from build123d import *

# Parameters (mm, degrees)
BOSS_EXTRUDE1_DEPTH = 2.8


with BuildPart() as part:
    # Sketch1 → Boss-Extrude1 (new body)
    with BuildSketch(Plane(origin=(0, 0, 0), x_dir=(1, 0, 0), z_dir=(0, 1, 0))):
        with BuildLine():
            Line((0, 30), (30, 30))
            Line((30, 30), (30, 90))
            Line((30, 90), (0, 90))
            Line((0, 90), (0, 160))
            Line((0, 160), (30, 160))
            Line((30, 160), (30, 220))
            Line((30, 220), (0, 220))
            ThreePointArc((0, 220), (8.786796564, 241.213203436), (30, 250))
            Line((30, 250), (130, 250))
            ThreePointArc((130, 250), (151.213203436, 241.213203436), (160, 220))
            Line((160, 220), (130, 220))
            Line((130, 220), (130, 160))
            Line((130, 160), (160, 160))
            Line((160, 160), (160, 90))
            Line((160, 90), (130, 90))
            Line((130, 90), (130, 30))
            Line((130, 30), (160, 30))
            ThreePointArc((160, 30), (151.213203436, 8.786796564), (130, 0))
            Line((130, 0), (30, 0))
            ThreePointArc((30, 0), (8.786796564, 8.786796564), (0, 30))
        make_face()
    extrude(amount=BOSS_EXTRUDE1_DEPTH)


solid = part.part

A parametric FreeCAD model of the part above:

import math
import FreeCAD as App
import Part
import Sketcher

doc = App.newDocument("Part")
body = doc.addObject("PartDesign::Body", "Body")

# Sketch on XZ plane
sketch1 = body.newObject("Sketcher::SketchObject", "Sketch")
sketch1.AttachmentSupport = (doc.getObject("XZ_Plane"), [""])
sketch1.MapMode = "FlatFace"
sketch1.addGeometry(Part.LineSegment(App.Vector(30, -30, 0), App.Vector(0, -30, 0)), False)
sketch1.addGeometry(Part.ArcOfCircle(Part.Circle(App.Vector(30, -30, 0), App.Vector(0, 0, 1), 30), math.radians(90), math.radians(180)), False)
sketch1.addGeometry(Part.LineSegment(App.Vector(30, 0, 0), App.Vector(130, 0, 0)), False)
sketch1.addGeometry(Part.ArcOfCircle(Part.Circle(App.Vector(130, -30, 0), App.Vector(0, 0, 1), 30), math.radians(0), math.radians(90)), False)
sketch1.addGeometry(Part.LineSegment(App.Vector(160, -30, 0), App.Vector(130, -30, 0)), False)
sketch1.addGeometry(Part.LineSegment(App.Vector(130, -30, 0), App.Vector(130, -90, 0)), False)
sketch1.addGeometry(Part.LineSegment(App.Vector(130, -90, 0), App.Vector(160, -90, 0)), False)
sketch1.addGeometry(Part.LineSegment(App.Vector(160, -90, 0), App.Vector(160, -160, 0)), False)
sketch1.addGeometry(Part.LineSegment(App.Vector(160, -160, 0), App.Vector(130, -160, 0)), False)
sketch1.addGeometry(Part.LineSegment(App.Vector(130, -160, 0), App.Vector(130, -220, 0)), False)
sketch1.addGeometry(Part.LineSegment(App.Vector(130, -220, 0), App.Vector(160, -220, 0)), False)
sketch1.addGeometry(Part.ArcOfCircle(Part.Circle(App.Vector(130, -220, 0), App.Vector(0, 0, 1), 30), math.radians(-90), math.radians(0)), False)
sketch1.addGeometry(Part.LineSegment(App.Vector(130, -250, 0), App.Vector(30, -250, 0)), False)
sketch1.addGeometry(Part.ArcOfCircle(Part.Circle(App.Vector(30, -220, 0), App.Vector(0, 0, 1), 30), math.radians(180), math.radians(270)), False)
sketch1.addGeometry(Part.LineSegment(App.Vector(0, -220, 0), App.Vector(30, -220, 0)), False)
sketch1.addGeometry(Part.LineSegment(App.Vector(30, -220, 0), App.Vector(30, -160, 0)), False)
sketch1.addGeometry(Part.LineSegment(App.Vector(30, -160, 0), App.Vector(0, -160, 0)), False)
sketch1.addGeometry(Part.LineSegment(App.Vector(0, -160, 0), App.Vector(0, -90, 0)), False)
sketch1.addGeometry(Part.LineSegment(App.Vector(0, -90, 0), App.Vector(30, -90, 0)), False)
sketch1.addGeometry(Part.LineSegment(App.Vector(30, -90, 0), App.Vector(30, -30, 0)), False)
sketch1.addConstraint(Sketcher.Constraint("Coincident", 0, 2, 1, 2))
sketch1.addConstraint(Sketcher.Constraint("Tangent", 1, 1, 2, 1))
sketch1.addConstraint(Sketcher.Constraint("Tangent", 2, 2, 3, 2))
sketch1.addConstraint(Sketcher.Constraint("Coincident", 3, 1, 4, 1))
sketch1.addConstraint(Sketcher.Constraint("Coincident", 4, 2, 5, 1))
sketch1.addConstraint(Sketcher.Constraint("Coincident", 5, 2, 6, 1))
sketch1.addConstraint(Sketcher.Constraint("Coincident", 6, 2, 7, 1))
sketch1.addConstraint(Sketcher.Constraint("Coincident", 7, 2, 8, 1))
sketch1.addConstraint(Sketcher.Constraint("Coincident", 8, 2, 9, 1))
sketch1.addConstraint(Sketcher.Constraint("Coincident", 9, 2, 10, 1))
sketch1.addConstraint(Sketcher.Constraint("Coincident", 10, 2, 11, 2))
sketch1.addConstraint(Sketcher.Constraint("Tangent", 11, 1, 12, 1))
sketch1.addConstraint(Sketcher.Constraint("Tangent", 12, 2, 13, 2))
sketch1.addConstraint(Sketcher.Constraint("Coincident", 13, 1, 14, 1))
sketch1.addConstraint(Sketcher.Constraint("Coincident", 14, 2, 15, 1))
sketch1.addConstraint(Sketcher.Constraint("Coincident", 15, 2, 16, 1))
sketch1.addConstraint(Sketcher.Constraint("Coincident", 16, 2, 17, 1))
sketch1.addConstraint(Sketcher.Constraint("Coincident", 17, 2, 18, 1))
sketch1.addConstraint(Sketcher.Constraint("Coincident", 18, 2, 19, 1))
sketch1.addConstraint(Sketcher.Constraint("Coincident", 19, 2, 0, 1))
sketch1.addConstraint(Sketcher.Constraint("Horizontal", 0))
sketch1.addConstraint(Sketcher.Constraint("Horizontal", 2))
sketch1.addConstraint(Sketcher.Constraint("Horizontal", 4))
sketch1.addConstraint(Sketcher.Constraint("Vertical", 5))
sketch1.addConstraint(Sketcher.Constraint("Horizontal", 6))
sketch1.addConstraint(Sketcher.Constraint("Vertical", 7))
sketch1.addConstraint(Sketcher.Constraint("Horizontal", 8))
sketch1.addConstraint(Sketcher.Constraint("Vertical", 9))
sketch1.addConstraint(Sketcher.Constraint("Horizontal", 10))
sketch1.addConstraint(Sketcher.Constraint("Horizontal", 12))
sketch1.addConstraint(Sketcher.Constraint("Horizontal", 14))
sketch1.addConstraint(Sketcher.Constraint("Vertical", 15))
sketch1.addConstraint(Sketcher.Constraint("Horizontal", 16))
sketch1.addConstraint(Sketcher.Constraint("Vertical", 17))
sketch1.addConstraint(Sketcher.Constraint("Horizontal", 18))
sketch1.addConstraint(Sketcher.Constraint("Vertical", 19))
sketch1.addConstraint(Sketcher.Constraint("Coincident", 4, 2, 3, 3))
sketch1.addConstraint(Sketcher.Constraint("Coincident", 9, 2, 11, 3))
sketch1.addConstraint(Sketcher.Constraint("Coincident", 14, 2, 13, 3))
sketch1.addConstraint(Sketcher.Constraint("Coincident", 19, 2, 1, 3))
sketch1.addConstraint(Sketcher.Constraint("Equal", 1, 3))
sketch1.addConstraint(Sketcher.Constraint("Equal", 3, 11))
sketch1.addConstraint(Sketcher.Constraint("Equal", 11, 13))
sketch1.addConstraint(Sketcher.Constraint("PointOnObject", 0, 2, -2))
sketch1.addConstraint(Sketcher.Constraint("PointOnObject", 1, 1, -1))
sketch1.addConstraint(Sketcher.Constraint("PointOnObject", 13, 1, -2))
sketch1.addConstraint(Sketcher.Constraint("PointOnObject", 16, 2, -2))
sketch1.addConstraint(Sketcher.Constraint("Horizontal", 8, 2, 15, 2))
sketch1.addConstraint(Sketcher.Constraint("Horizontal", 6, 2, 17, 2))
sketch1.addConstraint(Sketcher.Constraint("Vertical", 3, 3, 11, 3))
sketch1.addConstraint(Sketcher.Constraint("Vertical", 3, 1, 6, 2))
sketch1.addConstraint(Sketcher.Constraint("Equal", 5, 9))
sketch1.addConstraint(Sketcher.Constraint("Radius", 1, 30.0))
sketch1.addConstraint(Sketcher.Constraint("DistanceX", 2, 1, 2, 2, 100.0))
sketch1.addConstraint(Sketcher.Constraint("DistanceY", 5, 2, 5, 1, 60.0))
sketch1.addConstraint(Sketcher.Constraint("DistanceY", 7, 2, 7, 1, 70.0))
pad1 = body.newObject("PartDesign::Pad", "Pad")
pad1.Profile = sketch1
pad1.Length = 2.8
pad1.Reversed = True

doc.recompute()
